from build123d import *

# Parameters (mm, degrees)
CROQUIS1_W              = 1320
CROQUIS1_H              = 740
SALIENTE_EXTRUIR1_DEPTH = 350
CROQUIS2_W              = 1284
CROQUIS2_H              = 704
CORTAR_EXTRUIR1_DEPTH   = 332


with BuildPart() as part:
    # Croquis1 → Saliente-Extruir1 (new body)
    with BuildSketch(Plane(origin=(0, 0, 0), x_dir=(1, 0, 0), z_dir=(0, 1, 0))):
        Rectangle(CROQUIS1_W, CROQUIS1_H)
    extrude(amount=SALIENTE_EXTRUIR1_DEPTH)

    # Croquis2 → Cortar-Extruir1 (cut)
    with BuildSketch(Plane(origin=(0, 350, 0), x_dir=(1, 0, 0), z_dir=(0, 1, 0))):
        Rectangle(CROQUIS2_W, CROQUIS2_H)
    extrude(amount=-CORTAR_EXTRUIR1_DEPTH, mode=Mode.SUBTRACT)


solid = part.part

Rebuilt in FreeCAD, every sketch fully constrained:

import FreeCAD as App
import Part
import Sketcher
from FreeCAD import Vector
Q = App.Units.Quantity


def add_polygon(sketch, points):
    """Adds a closed chain of lines whose ends are joined by coincident constraints."""
    first, n = sketch.GeometryCount, len(points)
    for a, b in zip(points, points[1:] + points[:1]):
        sketch.addGeometry(Part.LineSegment(App.Vector(*a, 0), App.Vector(*b, 0)), False)
    for i in range(n):
        sketch.addConstraint(Sketcher.Constraint("Coincident", first + i, 2, first + (i + 1) % n, 1))

doc = App.newDocument("Part")
body = doc.addObject("PartDesign::Body", "Body")

# Sketch on XZ plane
sketch1 = body.newObject("Sketcher::SketchObject", "Sketch")
sketch1.AttachmentSupport = (doc.getObject("XZ_Plane"), [""])
sketch1.MapMode = "FlatFace"
add_polygon(sketch1, [(-660, -370), (-660, 370), (660, 370), (660, -370)])  # lines 0-3
sketch1.addConstraint([
    Sketcher.Constraint("Vertical", 0),
    Sketcher.Constraint("Horizontal", 1),
    Sketcher.Constraint("Vertical", 2),
    Sketcher.Constraint("Horizontal", 3),
    Sketcher.Constraint("Symmetric", 0, 2, 2, 2, -1, 1),
    Sketcher.Constraint("DistanceX", 1, 1, 1, 2, Q("1320 mm")),
    Sketcher.Constraint("DistanceY", 0, 1, 0, 2, Q("740 mm")),
])
pad1 = body.newObject("PartDesign::Pad", "Pad")
pad1.Profile = sketch1
pad1.Length = 350
pad1.Reversed = True

# Sketch on XZ plane
sketch2 = body.newObject("Sketcher::SketchObject", "Sketch001")
sketch2.AttachmentSupport = (doc.getObject("XZ_Plane"), [""])
sketch2.MapMode = "FlatFace"
sketch2.AttachmentOffset = App.Placement(Vector(0, 0, -350), App.Rotation())
add_polygon(sketch2, [(-642, -352), (-642, 352), (642, 352), (642, -352)])  # lines 0-3
sketch2.addConstraint([
    Sketcher.Constraint("Vertical", 0),
    Sketcher.Constraint("Horizontal", 1),
    Sketcher.Constraint("Vertical", 2),
    Sketcher.Constraint("Horizontal", 3),
    Sketcher.Constraint("Symmetric", 0, 2, 2, 2, -1, 1),
    Sketcher.Constraint("DistanceX", 1, 1, 1, 2, Q("1284 mm")),
    Sketcher.Constraint("DistanceY", 0, 1, 0, 2, Q("704 mm")),
])
pocket1 = body.newObject("PartDesign::Pocket", "Pocket")
pocket1.Profile = sketch2
pocket1.Length = 332
pocket1.Reversed = True

doc.recompute()
